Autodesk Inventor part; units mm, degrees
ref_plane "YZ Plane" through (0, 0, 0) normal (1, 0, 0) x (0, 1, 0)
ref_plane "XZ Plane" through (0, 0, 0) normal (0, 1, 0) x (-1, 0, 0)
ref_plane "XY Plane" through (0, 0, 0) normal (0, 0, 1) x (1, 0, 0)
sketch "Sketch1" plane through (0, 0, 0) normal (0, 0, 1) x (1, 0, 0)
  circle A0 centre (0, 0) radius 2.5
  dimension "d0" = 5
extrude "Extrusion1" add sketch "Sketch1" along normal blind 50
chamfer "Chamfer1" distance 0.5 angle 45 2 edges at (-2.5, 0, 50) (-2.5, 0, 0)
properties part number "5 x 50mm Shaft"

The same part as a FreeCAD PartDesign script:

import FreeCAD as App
import Part
import Sketcher

V = App.Vector
Q = App.Units.Quantity


def edges_at(feature, points):
    """Names of the edges that pass closest to the given points."""
    edges = feature.Shape.Edges
    near = lambda p: min(range(len(edges)), key=lambda i: edges[i].distToShape(Part.Vertex(*p))[0])
    return sorted({f"Edge{near(p) + 1}" for p in points})

doc = App.newDocument("Part")
body = doc.addObject("PartDesign::Body", "Body")

# Sketch on XY plane
sketch1 = body.newObject("Sketcher::SketchObject", "Sketch")
sketch1.AttachmentSupport = (doc.getObject("XY_Plane"), [""])
sketch1.MapMode = "FlatFace"
sketch1.addGeometry(Part.Circle(V(0, 0, 0), V(0, 0, 1), 2.5), False)
sketch1.addConstraint([
    Sketcher.Constraint("Coincident", 0, 3, -1, 1),
    Sketcher.Constraint("Diameter", 0, Q("5 mm")),
])
pad1 = body.newObject("PartDesign::Pad", "Pad")
pad1.Profile = sketch1
pad1.Length = 50
doc.recompute()

chamfer = body.newObject("PartDesign::Chamfer", "Chamfer")
chamfer.Base = (pad1, edges_at(pad1, [(-2.5, 0, 50), (-2.5, 0, 0)]))
chamfer.Size = 0.5

doc.recompute()
